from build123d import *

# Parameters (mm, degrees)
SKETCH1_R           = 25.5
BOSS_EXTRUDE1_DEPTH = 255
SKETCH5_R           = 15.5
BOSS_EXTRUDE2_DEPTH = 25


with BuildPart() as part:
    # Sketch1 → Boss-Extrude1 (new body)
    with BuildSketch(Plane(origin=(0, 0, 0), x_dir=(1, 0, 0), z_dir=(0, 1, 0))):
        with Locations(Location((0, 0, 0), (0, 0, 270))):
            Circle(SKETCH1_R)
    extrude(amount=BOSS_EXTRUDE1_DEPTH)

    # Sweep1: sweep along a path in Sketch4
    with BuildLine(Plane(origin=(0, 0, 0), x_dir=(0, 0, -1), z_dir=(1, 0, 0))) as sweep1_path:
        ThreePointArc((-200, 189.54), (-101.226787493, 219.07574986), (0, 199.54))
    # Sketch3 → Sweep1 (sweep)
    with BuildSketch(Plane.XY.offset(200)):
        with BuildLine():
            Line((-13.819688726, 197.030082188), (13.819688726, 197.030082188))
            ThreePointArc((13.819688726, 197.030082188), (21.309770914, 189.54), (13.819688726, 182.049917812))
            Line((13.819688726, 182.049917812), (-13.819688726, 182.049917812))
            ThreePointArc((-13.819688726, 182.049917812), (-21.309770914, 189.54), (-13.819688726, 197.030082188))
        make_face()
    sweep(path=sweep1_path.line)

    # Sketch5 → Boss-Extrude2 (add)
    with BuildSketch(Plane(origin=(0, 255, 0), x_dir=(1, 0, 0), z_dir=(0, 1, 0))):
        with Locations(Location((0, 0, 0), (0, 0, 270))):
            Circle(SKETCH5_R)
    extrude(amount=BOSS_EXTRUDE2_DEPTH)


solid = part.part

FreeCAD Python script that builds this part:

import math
import FreeCAD as App
import Part
import Sketcher

doc = App.newDocument("Part")
params = doc.addObject("Spreadsheet::Sheet", "Params")
for row, (alias, value) in enumerate([
    ("sketch1_diameter", "51 mm"),
    ("pad1_length", "255 mm"),
    ("sketch3_width", "10 mm"),
    ("sketch4_diameter", "31 mm"),
    ("pad2_length", "25 mm"),
], start=1):
    params.set(f"A{row}", alias)
    params.set(f"B{row}", "=" + value)
    params.setAlias(f"B{row}", alias)

body = doc.addObject("PartDesign::Body", "Body")

sketch1 = body.newObject("Sketcher::SketchObject", "Sketch")
sketch1.AttachmentSupport = (doc.getObject("XZ_Plane"), [""])
sketch1.MapMode = "FlatFace"
sketch1.addGeometry(Part.Circle(App.Vector(0, 0, 0), App.Vector(0, 0, 1), 26), False)
sketch1.addConstraint(Sketcher.Constraint("Coincident", 0, 3, -1, 1))
sketch1.addConstraint(Sketcher.Constraint("Diameter", 0, 51.0))
sketch1.setExpression("Constraints[1]", "Params.sketch1_diameter")
pad1 = body.newObject("PartDesign::Pad", "Pad")
pad1.Profile = sketch1
pad1.setExpression("Length", "Params.pad1_length")
pad1.Reversed = True

sketch2 = body.newObject("Sketcher::SketchObject", "Sketch001")
sketch2.AttachmentSupport = (doc.getObject("XY_Plane"), [""])
sketch2.MapMode = "FlatFace"
sketch2.AttachmentOffset = App.Placement(App.Vector(0, 0, 200), App.Rotation())
sketch2.addGeometry(Part.LineSegment(App.Vector(14, 197, 0), App.Vector(-14, 197, 0)), False)
sketch2.addGeometry(Part.ArcOfCircle(Part.Circle(App.Vector(-14, 190, 0), App.Vector(0, 0, 1), 7), math.radians(90), math.radians(270)), False)
sketch2.addGeometry(Part.LineSegment(App.Vector(-14, 182, 0), App.Vector(14, 182, 0)), False)
sketch2.addGeometry(Part.ArcOfCircle(Part.Circle(App.Vector(14, 190, 0), App.Vector(0, 0, 1), 7), math.radians(-90), math.radians(90)), False)
sketch2.addConstraint(Sketcher.Constraint("Tangent", 0, 2, 1, 1))
sketch2.addConstraint(Sketcher.Constraint("Tangent", 1, 2, 2, 1))
sketch2.addConstraint(Sketcher.Constraint("Tangent", 2, 2, 3, 1))
sketch2.addConstraint(Sketcher.Constraint("Tangent", 3, 2, 0, 1))
sketch2.addConstraint(Sketcher.Constraint("Horizontal", 0))
sketch2.addConstraint(Sketcher.Constraint("Horizontal", 2))
sketch2.addConstraint(Sketcher.Constraint("DistanceY", -1, 1, 1, 3, 189.54))
sketch2.addConstraint(Sketcher.Constraint("Radius", 1, 7.490082))
sketch2.addConstraint(Sketcher.Constraint("DistanceX", 0, 2, 0, 1, 27.639377))
sketch2.addConstraint(Sketcher.Constraint("DistanceX", 1, 3, -1, 1, 13.819689))

sketch3 = body.newObject("Sketcher::SketchObject", "Sketch002")
sketch3.AttachmentSupport = (doc.getObject("YZ_Plane"), [""])
sketch3.MapMode = "FlatFace"
sketch3.addGeometry(Part.ArcOfCircle(Part.Circle(App.Vector(3, 90, 0), App.Vector(0, 0, 1), 216), math.radians(-25), math.radians(30)), False)
sketch3.addConstraint(Sketcher.Constraint("PointOnObject", 0, 1, -1))
sketch3.addConstraint(Sketcher.Constraint("DistanceY", -1, 1, 0, 2, 200.0))
sketch3.addConstraint(Sketcher.Constraint("DistanceX", 0, 2, 0, 1, 10.0))
sketch3.addConstraint(Sketcher.Constraint("DistanceX", -1, 1, 0, 1, 199.54))
sketch3.addConstraint(Sketcher.Constraint("Radius", 0, 216.322047))
sketch3.setExpression("Constraints[2]", "Params.sketch3_width")
doc.recompute()

additivepipe = body.newObject("PartDesign::AdditivePipe", "AdditivePipe")
additivepipe.Profile = sketch2
additivepipe.Spine = (sketch3, ["Edge1"])

sketch4 = body.newObject("Sketcher::SketchObject", "Sketch003")
sketch4.AttachmentSupport = (doc.getObject("XZ_Plane"), [""])
sketch4.MapMode = "FlatFace"
sketch4.AttachmentOffset = App.Placement(App.Vector(0, 0, -255), App.Rotation())
sketch4.addGeometry(Part.Circle(App.Vector(0, 0, 0), App.Vector(0, 0, 1), 16), False)
sketch4.addConstraint(Sketcher.Constraint("Coincident", 0, 3, -1, 1))
sketch4.addConstraint(Sketcher.Constraint("Diameter", 0, 31.0))
sketch4.setExpression("Constraints[1]", "Params.sketch4_diameter")
pad2 = body.newObject("PartDesign::Pad", "Pad001")
pad2.Profile = sketch4
pad2.setExpression("Length", "Params.pad2_length")
pad2.Reversed = True

doc.recompute()
